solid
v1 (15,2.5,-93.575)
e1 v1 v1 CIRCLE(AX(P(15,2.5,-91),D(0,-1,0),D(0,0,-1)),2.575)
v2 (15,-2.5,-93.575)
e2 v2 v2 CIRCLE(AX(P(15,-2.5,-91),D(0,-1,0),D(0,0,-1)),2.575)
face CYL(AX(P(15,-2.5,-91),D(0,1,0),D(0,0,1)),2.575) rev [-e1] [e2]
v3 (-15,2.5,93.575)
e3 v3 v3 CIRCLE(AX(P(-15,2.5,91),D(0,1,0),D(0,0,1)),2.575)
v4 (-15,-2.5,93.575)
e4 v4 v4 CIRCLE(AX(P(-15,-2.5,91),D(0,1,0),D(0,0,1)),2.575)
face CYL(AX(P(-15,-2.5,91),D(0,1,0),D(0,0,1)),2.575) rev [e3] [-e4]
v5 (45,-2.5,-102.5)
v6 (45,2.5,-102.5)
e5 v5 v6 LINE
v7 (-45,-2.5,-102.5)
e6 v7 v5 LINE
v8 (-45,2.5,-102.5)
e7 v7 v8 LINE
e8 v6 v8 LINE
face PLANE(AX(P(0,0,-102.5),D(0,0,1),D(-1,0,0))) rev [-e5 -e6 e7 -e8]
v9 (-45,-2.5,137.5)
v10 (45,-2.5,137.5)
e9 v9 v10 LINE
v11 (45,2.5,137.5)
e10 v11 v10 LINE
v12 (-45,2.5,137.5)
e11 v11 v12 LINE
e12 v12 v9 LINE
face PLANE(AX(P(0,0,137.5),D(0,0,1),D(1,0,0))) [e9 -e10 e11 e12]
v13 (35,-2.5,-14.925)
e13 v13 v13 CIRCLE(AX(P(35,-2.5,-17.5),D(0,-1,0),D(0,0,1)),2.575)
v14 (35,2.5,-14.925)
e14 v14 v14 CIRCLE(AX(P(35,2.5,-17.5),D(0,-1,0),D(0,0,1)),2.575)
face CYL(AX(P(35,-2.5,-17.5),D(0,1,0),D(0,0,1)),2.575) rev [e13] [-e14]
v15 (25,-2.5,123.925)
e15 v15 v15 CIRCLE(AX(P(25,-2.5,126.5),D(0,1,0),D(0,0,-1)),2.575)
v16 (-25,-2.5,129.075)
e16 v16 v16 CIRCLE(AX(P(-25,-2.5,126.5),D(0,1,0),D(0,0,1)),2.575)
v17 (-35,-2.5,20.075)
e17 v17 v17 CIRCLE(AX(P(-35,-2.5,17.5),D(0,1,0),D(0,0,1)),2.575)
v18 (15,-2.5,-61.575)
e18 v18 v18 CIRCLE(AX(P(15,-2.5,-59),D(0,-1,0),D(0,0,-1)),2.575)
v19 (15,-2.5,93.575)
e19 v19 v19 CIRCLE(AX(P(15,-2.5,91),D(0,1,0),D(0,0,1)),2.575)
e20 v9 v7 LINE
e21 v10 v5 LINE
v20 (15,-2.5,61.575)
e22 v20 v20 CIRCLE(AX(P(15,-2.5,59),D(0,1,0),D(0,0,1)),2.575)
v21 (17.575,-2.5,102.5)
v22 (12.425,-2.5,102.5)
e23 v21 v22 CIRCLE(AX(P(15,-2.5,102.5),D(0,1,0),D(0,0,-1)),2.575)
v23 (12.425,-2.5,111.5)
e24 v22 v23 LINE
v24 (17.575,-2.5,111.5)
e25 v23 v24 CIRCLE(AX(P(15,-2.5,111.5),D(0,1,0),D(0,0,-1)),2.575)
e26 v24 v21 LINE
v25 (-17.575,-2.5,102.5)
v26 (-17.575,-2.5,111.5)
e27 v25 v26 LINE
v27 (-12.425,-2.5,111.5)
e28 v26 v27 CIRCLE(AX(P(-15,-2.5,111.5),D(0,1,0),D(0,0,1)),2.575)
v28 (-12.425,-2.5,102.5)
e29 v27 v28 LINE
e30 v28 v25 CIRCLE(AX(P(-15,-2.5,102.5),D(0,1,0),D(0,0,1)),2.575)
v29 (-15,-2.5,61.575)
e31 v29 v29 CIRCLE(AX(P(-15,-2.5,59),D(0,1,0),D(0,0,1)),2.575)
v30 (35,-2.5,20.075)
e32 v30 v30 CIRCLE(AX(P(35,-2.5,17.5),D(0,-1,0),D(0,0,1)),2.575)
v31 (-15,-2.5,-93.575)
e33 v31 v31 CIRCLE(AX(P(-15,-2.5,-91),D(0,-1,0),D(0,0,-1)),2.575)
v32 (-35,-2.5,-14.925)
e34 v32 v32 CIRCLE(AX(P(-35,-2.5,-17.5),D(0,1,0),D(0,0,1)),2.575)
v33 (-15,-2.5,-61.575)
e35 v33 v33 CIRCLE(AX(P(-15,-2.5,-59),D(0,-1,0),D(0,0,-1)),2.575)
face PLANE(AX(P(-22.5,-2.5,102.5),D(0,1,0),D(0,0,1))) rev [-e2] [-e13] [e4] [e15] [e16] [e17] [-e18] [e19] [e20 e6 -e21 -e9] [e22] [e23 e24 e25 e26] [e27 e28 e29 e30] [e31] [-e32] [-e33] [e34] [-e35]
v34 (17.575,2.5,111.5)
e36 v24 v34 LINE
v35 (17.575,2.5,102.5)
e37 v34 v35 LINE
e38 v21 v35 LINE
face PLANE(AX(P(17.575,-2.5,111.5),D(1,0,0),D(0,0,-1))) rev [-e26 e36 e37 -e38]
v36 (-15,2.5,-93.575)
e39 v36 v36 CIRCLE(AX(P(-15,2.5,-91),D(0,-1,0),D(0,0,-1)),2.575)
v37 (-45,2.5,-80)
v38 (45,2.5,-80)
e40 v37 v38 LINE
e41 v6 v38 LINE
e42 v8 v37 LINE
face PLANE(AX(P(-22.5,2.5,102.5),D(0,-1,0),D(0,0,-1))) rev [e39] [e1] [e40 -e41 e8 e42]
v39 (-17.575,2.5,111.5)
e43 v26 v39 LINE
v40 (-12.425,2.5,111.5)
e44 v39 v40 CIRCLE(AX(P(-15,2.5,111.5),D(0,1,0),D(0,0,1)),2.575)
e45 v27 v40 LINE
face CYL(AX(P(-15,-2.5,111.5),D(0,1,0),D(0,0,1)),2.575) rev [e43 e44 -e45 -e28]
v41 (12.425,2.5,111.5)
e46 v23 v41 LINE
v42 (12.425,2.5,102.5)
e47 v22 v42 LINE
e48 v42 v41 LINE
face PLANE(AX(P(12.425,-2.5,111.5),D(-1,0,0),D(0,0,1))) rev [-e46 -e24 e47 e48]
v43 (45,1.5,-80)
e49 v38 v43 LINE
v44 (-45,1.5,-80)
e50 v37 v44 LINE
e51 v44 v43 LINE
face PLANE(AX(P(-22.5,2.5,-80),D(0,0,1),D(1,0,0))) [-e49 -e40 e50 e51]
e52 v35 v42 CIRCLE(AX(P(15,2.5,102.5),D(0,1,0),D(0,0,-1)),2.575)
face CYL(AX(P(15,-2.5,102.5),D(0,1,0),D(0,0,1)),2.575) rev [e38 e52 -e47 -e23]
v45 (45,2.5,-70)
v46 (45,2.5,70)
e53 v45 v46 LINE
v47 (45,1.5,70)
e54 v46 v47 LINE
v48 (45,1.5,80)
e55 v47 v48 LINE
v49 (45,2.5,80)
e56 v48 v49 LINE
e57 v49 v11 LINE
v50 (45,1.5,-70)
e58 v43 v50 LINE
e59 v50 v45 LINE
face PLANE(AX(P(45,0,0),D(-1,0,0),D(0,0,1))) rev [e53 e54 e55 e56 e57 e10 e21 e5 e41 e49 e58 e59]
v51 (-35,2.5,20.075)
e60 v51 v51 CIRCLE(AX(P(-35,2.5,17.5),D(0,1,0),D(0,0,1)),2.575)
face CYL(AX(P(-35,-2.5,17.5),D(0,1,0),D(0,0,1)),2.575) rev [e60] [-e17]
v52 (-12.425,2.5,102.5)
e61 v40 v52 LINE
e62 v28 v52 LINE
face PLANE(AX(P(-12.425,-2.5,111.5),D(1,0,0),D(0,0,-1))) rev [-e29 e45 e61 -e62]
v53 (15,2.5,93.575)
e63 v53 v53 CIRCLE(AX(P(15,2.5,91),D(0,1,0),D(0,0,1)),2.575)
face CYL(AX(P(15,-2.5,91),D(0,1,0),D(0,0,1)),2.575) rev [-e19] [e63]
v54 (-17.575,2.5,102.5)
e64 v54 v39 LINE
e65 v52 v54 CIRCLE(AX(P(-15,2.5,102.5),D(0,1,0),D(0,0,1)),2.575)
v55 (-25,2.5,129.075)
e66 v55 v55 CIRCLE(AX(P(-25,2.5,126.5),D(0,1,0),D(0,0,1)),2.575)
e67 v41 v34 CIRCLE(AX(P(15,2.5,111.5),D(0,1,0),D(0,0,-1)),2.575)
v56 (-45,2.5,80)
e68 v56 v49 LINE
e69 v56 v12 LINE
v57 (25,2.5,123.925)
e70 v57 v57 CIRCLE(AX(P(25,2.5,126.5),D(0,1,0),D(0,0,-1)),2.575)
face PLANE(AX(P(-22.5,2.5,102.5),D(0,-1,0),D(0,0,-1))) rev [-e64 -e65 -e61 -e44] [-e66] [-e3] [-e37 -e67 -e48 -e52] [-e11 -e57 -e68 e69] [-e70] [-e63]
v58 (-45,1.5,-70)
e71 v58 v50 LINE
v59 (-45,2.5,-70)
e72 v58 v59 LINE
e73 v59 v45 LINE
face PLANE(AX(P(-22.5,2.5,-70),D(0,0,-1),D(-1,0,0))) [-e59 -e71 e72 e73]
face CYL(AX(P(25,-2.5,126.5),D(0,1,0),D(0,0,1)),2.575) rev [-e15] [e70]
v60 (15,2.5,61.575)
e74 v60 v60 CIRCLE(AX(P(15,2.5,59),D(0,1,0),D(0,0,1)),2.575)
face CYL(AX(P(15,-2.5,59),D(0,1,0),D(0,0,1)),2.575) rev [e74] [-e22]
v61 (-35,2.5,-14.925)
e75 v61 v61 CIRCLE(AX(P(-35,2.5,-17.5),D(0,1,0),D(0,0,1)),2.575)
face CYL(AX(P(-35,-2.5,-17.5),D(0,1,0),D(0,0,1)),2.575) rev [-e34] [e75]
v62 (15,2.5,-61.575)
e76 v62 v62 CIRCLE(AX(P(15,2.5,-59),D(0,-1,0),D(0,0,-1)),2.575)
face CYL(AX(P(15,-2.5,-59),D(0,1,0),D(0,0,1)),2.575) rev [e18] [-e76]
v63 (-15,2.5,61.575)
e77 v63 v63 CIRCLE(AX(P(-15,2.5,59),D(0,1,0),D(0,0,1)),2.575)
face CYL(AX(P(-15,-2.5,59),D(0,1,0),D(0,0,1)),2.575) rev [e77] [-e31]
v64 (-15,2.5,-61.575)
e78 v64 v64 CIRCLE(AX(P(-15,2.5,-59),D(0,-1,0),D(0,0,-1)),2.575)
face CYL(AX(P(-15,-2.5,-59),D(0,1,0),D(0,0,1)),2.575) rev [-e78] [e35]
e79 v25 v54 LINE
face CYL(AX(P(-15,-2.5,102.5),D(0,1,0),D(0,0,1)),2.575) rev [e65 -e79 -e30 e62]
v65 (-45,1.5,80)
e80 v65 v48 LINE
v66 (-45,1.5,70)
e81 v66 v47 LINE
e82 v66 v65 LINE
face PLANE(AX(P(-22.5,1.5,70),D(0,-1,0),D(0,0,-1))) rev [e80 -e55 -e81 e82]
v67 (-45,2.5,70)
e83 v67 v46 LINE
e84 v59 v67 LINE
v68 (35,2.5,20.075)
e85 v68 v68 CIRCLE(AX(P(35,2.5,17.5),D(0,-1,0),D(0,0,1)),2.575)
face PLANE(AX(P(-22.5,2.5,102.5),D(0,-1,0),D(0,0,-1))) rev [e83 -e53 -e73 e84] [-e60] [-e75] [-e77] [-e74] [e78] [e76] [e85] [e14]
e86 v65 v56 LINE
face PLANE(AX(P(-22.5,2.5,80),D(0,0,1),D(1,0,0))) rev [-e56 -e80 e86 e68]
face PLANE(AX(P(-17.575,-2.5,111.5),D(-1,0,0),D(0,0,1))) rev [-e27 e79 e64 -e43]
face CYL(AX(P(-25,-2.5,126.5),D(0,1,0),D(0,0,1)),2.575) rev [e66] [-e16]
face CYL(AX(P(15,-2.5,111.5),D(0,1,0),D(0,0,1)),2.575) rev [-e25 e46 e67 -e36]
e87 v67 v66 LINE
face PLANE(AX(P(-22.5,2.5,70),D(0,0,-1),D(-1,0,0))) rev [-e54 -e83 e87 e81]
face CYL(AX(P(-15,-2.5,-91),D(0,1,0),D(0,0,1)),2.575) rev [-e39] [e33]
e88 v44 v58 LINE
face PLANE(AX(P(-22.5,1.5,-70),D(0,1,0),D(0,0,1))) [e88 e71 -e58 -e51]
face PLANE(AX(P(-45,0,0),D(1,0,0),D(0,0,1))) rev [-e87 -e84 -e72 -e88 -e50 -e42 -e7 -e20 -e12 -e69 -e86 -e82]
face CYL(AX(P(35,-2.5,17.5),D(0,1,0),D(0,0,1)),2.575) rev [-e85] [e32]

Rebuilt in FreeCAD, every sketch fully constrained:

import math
import FreeCAD as App
import Part
import Sketcher

V = App.Vector
Q = App.Units.Quantity


def add_polygon(sketch, points):
    """Adds a closed chain of lines whose ends are joined by coincident constraints."""
    first, n = sketch.GeometryCount, len(points)
    for a, b in zip(points, points[1:] + points[:1]):
        sketch.addGeometry(Part.LineSegment(App.Vector(*a, 0), App.Vector(*b, 0)), False)
    for i in range(n):
        sketch.addConstraint(Sketcher.Constraint("Coincident", first + i, 2, first + (i + 1) % n, 1))

doc = App.newDocument("Part")
body = doc.addObject("PartDesign::Body", "Body")

sketch1 = body.newObject("Sketcher::SketchObject", "Sketch")
sketch1.AttachmentSupport = (doc.getObject("XY_Plane"), [""])
sketch1.MapMode = "FlatFace"
add_polygon(sketch1, [(-22, 2), (-22, -2), (22, -2), (22, 2)])
sketch1.addConstraint([
    Sketcher.Constraint("Vertical", 0),
    Sketcher.Constraint("Horizontal", 1),
    Sketcher.Constraint("Vertical", 2),
    Sketcher.Constraint("Horizontal", 3),
    Sketcher.Constraint("Symmetric", 0, 2, 2, 2, -1, 1),
    Sketcher.Constraint("DistanceX", 1, 1, 1, 2, Q("45 mm")),
    Sketcher.Constraint("DistanceY", 0, 2, 0, 1, Q("5 mm")),
])
pad1 = body.newObject("PartDesign::Pad", "Pad")
pad1.Profile = sketch1
pad1.Length = 102.5

sketch2 = body.newObject("Sketcher::SketchObject", "Sketch001")
sketch2.AttachmentSupport = (doc.getObject("XZ_Plane"), [""])
sketch2.MapMode = "FlatFace"
sketch2.AttachmentOffset = App.Placement(V(0, 0, -2.5), App.Rotation())
sketch2.addGeometry([
    Part.Circle(V(-15, 59, 0), V(0, 0, 1), 2.6),
    Part.Circle(V(15, 59, 0), V(0, 0, 1), 2.6),
    Part.Circle(V(-15, 91, 0), V(0, 0, 1), 2.6),
    Part.Circle(V(15, 91, 0), V(0, 0, 1), 2.6),
], False)
sketch2.addConstraint([
    Sketcher.Constraint("Equal", 0, 1),
    Sketcher.Constraint("Equal", 1, 2),
    Sketcher.Constraint("Equal", 2, 3),
    Sketcher.Constraint("Symmetric", 0, 3, 1, 3, -2),
    Sketcher.Constraint("Symmetric", 2, 3, 3, 3, -2),
    Sketcher.Constraint("Vertical", 0, 3, 2, 3),
    Sketcher.Constraint("Diameter", 0, Q("5.15 mm")),
    Sketcher.Constraint("DistanceX", 0, 3, -1, 1, Q("15 mm")),
    Sketcher.Constraint("DistanceY", -1, 1, 0, 3, Q("59 mm")),
    Sketcher.Constraint("DistanceY", -1, 1, 2, 3, Q("91 mm")),
])
pocket1 = body.newObject("PartDesign::Pocket", "Pocket")
pocket1.Profile = sketch2
pocket1.Type = "ThroughAll"
pocket1.Reversed = True

sketch3 = body.newObject("Sketcher::SketchObject", "Sketch002")
sketch3.AttachmentSupport = (doc.getObject("YZ_Plane"), [""])
sketch3.MapMode = "FlatFace"
sketch3.AttachmentOffset = App.Placement(V(0, 0, 22.5), App.Rotation())
add_polygon(sketch3, [(2.5, 80), (1.5, 80), (1.5, 70), (2.5, 70)])
sketch3.addConstraint([
    Sketcher.Constraint("Horizontal", 0),
    Sketcher.Constraint("Vertical", 1),
    Sketcher.Constraint("Horizontal", 2),
    Sketcher.Constraint("Vertical", 3),
    Sketcher.Constraint("DistanceX", 0, 2, 0, 1, Q("1 mm")),
    Sketcher.Constraint("DistanceY", 1, 2, 1, 1, Q("10 mm")),
    Sketcher.Constraint("DistanceY", -1, 1, 0, 2, Q("80 mm")),
    Sketcher.Constraint("DistanceX", -1, 1, 0, 2, Q("1.5 mm")),
])
pocket2 = body.newObject("PartDesign::Pocket", "Pocket001")
pocket2.Profile = sketch3
pocket2.Type = "ThroughAll"
doc.recompute()

mirrored = body.newObject("PartDesign::Mirrored", "Mirrored")
mirrored.Originals = [pad1, pocket1, pocket2]
mirrored.MirrorPlane = (doc.getObject("XY_Plane"), [""])
body.Tip = mirrored

sketch4 = body.newObject("Sketcher::SketchObject", "Sketch003")
sketch4.AttachmentSupport = (doc.getObject("XY_Plane"), [""])
sketch4.MapMode = "FlatFace"
sketch4.AttachmentOffset = App.Placement(V(0, 0, 102.5), App.Rotation())
add_polygon(sketch4, [(-22, 2), (-22, -2), (22, -2), (22, 2)])
sketch4.addConstraint([
    Sketcher.Constraint("Vertical", 0),
    Sketcher.Constraint("Horizontal", 1),
    Sketcher.Constraint("Vertical", 2),
    Sketcher.Constraint("Horizontal", 3),
    Sketcher.Constraint("Symmetric", 0, 2, 2, 2, -1, 1),
    Sketcher.Constraint("DistanceX", 1, 1, 1, 2, Q("45 mm")),
    Sketcher.Constraint("DistanceY", 0, 2, 0, 1, Q("5 mm")),
])
pad2 = body.newObject("PartDesign::Pad", "Pad001")
pad2.Profile = sketch4
pad2.Length = 35

sketch5 = body.newObject("Sketcher::SketchObject", "Sketch004")
sketch5.AttachmentSupport = (doc.getObject("YZ_Plane"), [""])
sketch5.MapMode = "FlatFace"
sketch5.AttachmentOffset = App.Placement(V(0, 0, 22.5), App.Rotation())
add_polygon(sketch5, [(1.5, -70), (2.5, -70), (2.5, 70), (1.5, 70), (1.5, 80), (2.5, 80), (2.5, 137.5), (-2.5, 137.5), (-2.5, -102.5), (2.5, -102.5), (2.5, -80), (1.5, -80)])
sketch5.addConstraint([
    Sketcher.Constraint("Horizontal", 0),
    Sketcher.Constraint("Vertical", 1),
    Sketcher.Constraint("Horizontal", 2),
    Sketcher.Constraint("Vertical", 3),
    Sketcher.Constraint("Horizontal", 4),
    Sketcher.Constraint("Vertical", 5),
    Sketcher.Constraint("Horizontal", 6),
    Sketcher.Constraint("Vertical", 7),
    Sketcher.Constraint("Horizontal", 8),
    Sketcher.Constraint("Vertical", 9),
    Sketcher.Constraint("Horizontal", 10),
    Sketcher.Constraint("Vertical", 11),
    Sketcher.Constraint("Symmetric", 4, 2, 9, 2, -1),
    Sketcher.Constraint("Symmetric", 2, 2, 11, 2, -1),
    Sketcher.Constraint("Vertical", 1, 2, 4, 2),
    Sketcher.Constraint("DistanceX", 0, 1, 0, 2, Q("1 mm")),
    Sketcher.Constraint("DistanceX", 6, 2, 6, 1, Q("5 mm")),
    Sketcher.Constraint("DistanceY", 1, 1, 1, 2, Q("140 mm")),
    Sketcher.Constraint("DistanceY", 3, 1, 3, 2, Q("10 mm")),
    Sketcher.Constraint("DistanceY", 7, 2, 7, 1, Q("240 mm")),
    Sketcher.Constraint("DistanceY", 5, 1, 5, 2, Q("57.5 mm")),
    Sketcher.Constraint("DistanceX", -1, 1, 0, 2, Q("2.5 mm")),
])
pad3 = body.newObject("PartDesign::Pad", "Pad002")
pad3.Profile = sketch5
pad3.Length = 22.5
doc.recompute()

mirrored2 = body.newObject("PartDesign::Mirrored", "Mirrored001")
mirrored2.Originals = [pad3]
mirrored2.MirrorPlane = (doc.getObject("YZ_Plane"), [""])
body.Tip = mirrored2

sketch6 = body.newObject("Sketcher::SketchObject", "Sketch005")
sketch6.AttachmentSupport = (doc.getObject("XZ_Plane"), [""])
sketch6.MapMode = "FlatFace"
sketch6.AttachmentOffset = App.Placement(V(0, 0, -2.5), App.Rotation())
sketch6.addGeometry([
    Part.Circle(V(-35, 17.5, 0), V(0, 0, 1), 2.6),
    Part.Circle(V(-35, -17.5, 0), V(0, 0, 1), 2.6),
], False)
sketch6.addConstraint([
    Sketcher.Constraint("Equal", 0, 1),
    Sketcher.Constraint("Symmetric", 0, 3, 1, 3, -1),
    Sketcher.Constraint("Diameter", 0, Q("5.15 mm")),
    Sketcher.Constraint("DistanceX", 0, 3, -1, 1, Q("35 mm")),
    Sketcher.Constraint("DistanceY", 1, 3, 0, 3, Q("35 mm")),
])
pocket3 = body.newObject("PartDesign::Pocket", "Pocket002")
pocket3.Profile = sketch6
pocket3.Type = "ThroughAll"
pocket3.Reversed = True
doc.recompute()

mirrored3 = body.newObject("PartDesign::Mirrored", "Mirrored002")
mirrored3.Originals = [pocket3]
mirrored3.MirrorPlane = (doc.getObject("YZ_Plane"), [""])
body.Tip = mirrored3

sketch7 = body.newObject("Sketcher::SketchObject", "Sketch006")
sketch7.AttachmentSupport = (doc.getObject("XZ_Plane"), [""])
sketch7.MapMode = "FlatFace"
sketch7.AttachmentOffset = App.Placement(V(0, 0, -2.5), App.Rotation())
sketch7.addGeometry([
    Part.Circle(V(-25, 126.5, 0), V(0, 0, 1), 2.6),
    Part.Circle(V(25, 126.5, 0), V(0, 0, 1), 2.6),
], False)
sketch7.addConstraint([
    Sketcher.Constraint("Equal", 0, 1),
    Sketcher.Constraint("Symmetric", 0, 3, 1, 3, -2),
    Sketcher.Constraint("Diameter", 0, Q("5.15 mm")),
    Sketcher.Constraint("DistanceX", 0, 3, -1, 1, Q("25 mm")),
    Sketcher.Constraint("DistanceY", -1, 1, 0, 3, Q("126.5 mm")),
])
pocket4 = body.newObject("PartDesign::Pocket", "Pocket003")
pocket4.Profile = sketch7
pocket4.Type = "ThroughAll"
pocket4.Reversed = True

sketch8 = body.newObject("Sketcher::SketchObject", "Sketch007")
sketch8.AttachmentSupport = (doc.getObject("XZ_Plane"), [""])
sketch8.MapMode = "FlatFace"
sketch8.AttachmentOffset = App.Placement(V(0, 0, -2.5), App.Rotation())
sketch8.addGeometry([
    Part.LineSegment(V(-17.6, 102.5, 0), V(-17.6, 111.5, 0)),
    Part.ArcOfCircle(Part.Circle(V(-15, 111.5, 0), V(0, 0, 1), 2.6), math.radians(0), math.radians(180)),
    Part.LineSegment(V(-12.4, 111.5, 0), V(-12.4, 102.5, 0)),
    Part.ArcOfCircle(Part.Circle(V(-15, 102.5, 0), V(0, 0, 1), 2.6), math.radians(180), math.radians(360)),
    Part.LineSegment(V(17.6, 111.5, 0), V(17.6, 102.5, 0)),
    Part.ArcOfCircle(Part.Circle(V(15, 102.5, 0), V(0, 0, 1), 2.6), math.radians(180), math.radians(360)),
    Part.LineSegment(V(12.4, 102.5, 0), V(12.4, 111.5, 0)),
    Part.ArcOfCircle(Part.Circle(V(15, 111.5, 0), V(0, 0, 1), 2.6), math.radians(0), math.radians(180)),
], False)
sketch8.addConstraint([
    Sketcher.Constraint("Tangent", 0, 2, 1, 2),
    Sketcher.Constraint("Tangent", 1, 1, 2, 1),
    Sketcher.Constraint("Tangent", 2, 2, 3, 2),
    Sketcher.Constraint("Tangent", 3, 1, 0, 1),
    Sketcher.Constraint("Tangent", 4, 2, 5, 2),
    Sketcher.Constraint("Tangent", 5, 1, 6, 1),
    Sketcher.Constraint("Tangent", 6, 2, 7, 2),
    Sketcher.Constraint("Tangent", 7, 1, 4, 1),
    Sketcher.Constraint("Vertical", 0),
    Sketcher.Constraint("Vertical", 2),
    Sketcher.Constraint("Vertical", 4),
    Sketcher.Constraint("Vertical", 6),
    Sketcher.Constraint("Equal", 3, 5),
    Sketcher.Constraint("Symmetric", 3, 3, 5, 3, -2),
    Sketcher.Constraint("Horizontal", 1, 3, 7, 3),
    Sketcher.Constraint("DistanceY", 0, 1, 0, 2, Q("9 mm")),
    Sketcher.Constraint("DistanceX", 1, 3, -1, 1, Q("15 mm")),
    Sketcher.Constraint("Radius", 1, Q("2.575 mm")),
    Sketcher.Constraint("DistanceY", -1, 1, 1, 3, Q("111.5 mm")),
])
pocket5 = body.newObject("PartDesign::Pocket", "Pocket004")
pocket5.Profile = sketch8
pocket5.Type = "ThroughAll"
pocket5.Reversed = True

doc.recompute()
